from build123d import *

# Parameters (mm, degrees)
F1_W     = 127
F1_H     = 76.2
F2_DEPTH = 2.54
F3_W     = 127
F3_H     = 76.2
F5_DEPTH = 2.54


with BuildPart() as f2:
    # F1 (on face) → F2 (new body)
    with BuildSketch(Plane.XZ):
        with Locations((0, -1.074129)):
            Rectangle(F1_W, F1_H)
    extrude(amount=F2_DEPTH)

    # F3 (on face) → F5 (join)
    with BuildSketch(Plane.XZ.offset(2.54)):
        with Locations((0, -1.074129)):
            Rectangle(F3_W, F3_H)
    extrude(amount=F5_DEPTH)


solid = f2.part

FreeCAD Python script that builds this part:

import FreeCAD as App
import Part
import Sketcher
from FreeCAD import Vector
Q = App.Units.Quantity


def add_polygon(sketch, points):
    """Adds a closed chain of lines whose ends are joined by coincident constraints."""
    first, n = sketch.GeometryCount, len(points)
    for a, b in zip(points, points[1:] + points[:1]):
        sketch.addGeometry(Part.LineSegment(App.Vector(*a, 0), App.Vector(*b, 0)), False)
    for i in range(n):
        sketch.addConstraint(Sketcher.Constraint("Coincident", first + i, 2, first + (i + 1) % n, 1))

doc = App.newDocument("Part")
body = doc.addObject("PartDesign::Body", "Body")

# Sketch on XZ plane
sketch1 = body.newObject("Sketcher::SketchObject", "Sketch")
sketch1.AttachmentSupport = (doc.getObject("XZ_Plane"), [""])
sketch1.MapMode = "FlatFace"
add_polygon(sketch1, [(-64, 37), (-64, -39), (64, -39), (64, 37)])  # lines 0-3
sketch1.addConstraint(Sketcher.Constraint("Vertical", 0))
sketch1.addConstraint(Sketcher.Constraint("Horizontal", 1))
sketch1.addConstraint(Sketcher.Constraint("Vertical", 2))
sketch1.addConstraint(Sketcher.Constraint("Horizontal", 3))
sketch1.addConstraint(Sketcher.Constraint("DistanceX", 1, 1, 1, 2, Q("5 in")))
sketch1.addConstraint(Sketcher.Constraint("DistanceY", 0, 2, 0, 1, Q("3 in")))
sketch1.addConstraint(Sketcher.Constraint("DistanceX", 0, 2, -1, 1, Q("2.5 in")))
sketch1.addConstraint(Sketcher.Constraint("DistanceY", 0, 2, -1, 1, Q("39.174129 mm")))
pad1 = body.newObject("PartDesign::Pad", "Pad")
pad1.Profile = sketch1
pad1.Length = Q("0.1 in")

# Sketch on XZ plane
sketch2 = body.newObject("Sketcher::SketchObject", "Sketch001")
sketch2.AttachmentSupport = (doc.getObject("XZ_Plane"), [""])
sketch2.MapMode = "FlatFace"
sketch2.AttachmentOffset = App.Placement(Vector(0, 0, 0.1 * 25.4), App.Rotation())
add_polygon(sketch2, [(-64, 37), (-64, -39), (64, -39), (64, 37)])  # lines 0-3
sketch2.addConstraint(Sketcher.Constraint("Vertical", 0))
sketch2.addConstraint(Sketcher.Constraint("Horizontal", 1))
sketch2.addConstraint(Sketcher.Constraint("Vertical", 2))
sketch2.addConstraint(Sketcher.Constraint("Horizontal", 3))
sketch2.addConstraint(Sketcher.Constraint("DistanceX", 1, 1, 1, 2, Q("5 in")))
sketch2.addConstraint(Sketcher.Constraint("DistanceY", 0, 2, 0, 1, Q("3 in")))
sketch2.addConstraint(Sketcher.Constraint("DistanceX", 0, 2, -1, 1, Q("2.5 in")))
sketch2.addConstraint(Sketcher.Constraint("DistanceY", 0, 2, -1, 1, Q("39.174129 mm")))
pad2 = body.newObject("PartDesign::Pad", "Pad001")
pad2.Profile = sketch2
pad2.Length = Q("0.1 in")

doc.recompute()
